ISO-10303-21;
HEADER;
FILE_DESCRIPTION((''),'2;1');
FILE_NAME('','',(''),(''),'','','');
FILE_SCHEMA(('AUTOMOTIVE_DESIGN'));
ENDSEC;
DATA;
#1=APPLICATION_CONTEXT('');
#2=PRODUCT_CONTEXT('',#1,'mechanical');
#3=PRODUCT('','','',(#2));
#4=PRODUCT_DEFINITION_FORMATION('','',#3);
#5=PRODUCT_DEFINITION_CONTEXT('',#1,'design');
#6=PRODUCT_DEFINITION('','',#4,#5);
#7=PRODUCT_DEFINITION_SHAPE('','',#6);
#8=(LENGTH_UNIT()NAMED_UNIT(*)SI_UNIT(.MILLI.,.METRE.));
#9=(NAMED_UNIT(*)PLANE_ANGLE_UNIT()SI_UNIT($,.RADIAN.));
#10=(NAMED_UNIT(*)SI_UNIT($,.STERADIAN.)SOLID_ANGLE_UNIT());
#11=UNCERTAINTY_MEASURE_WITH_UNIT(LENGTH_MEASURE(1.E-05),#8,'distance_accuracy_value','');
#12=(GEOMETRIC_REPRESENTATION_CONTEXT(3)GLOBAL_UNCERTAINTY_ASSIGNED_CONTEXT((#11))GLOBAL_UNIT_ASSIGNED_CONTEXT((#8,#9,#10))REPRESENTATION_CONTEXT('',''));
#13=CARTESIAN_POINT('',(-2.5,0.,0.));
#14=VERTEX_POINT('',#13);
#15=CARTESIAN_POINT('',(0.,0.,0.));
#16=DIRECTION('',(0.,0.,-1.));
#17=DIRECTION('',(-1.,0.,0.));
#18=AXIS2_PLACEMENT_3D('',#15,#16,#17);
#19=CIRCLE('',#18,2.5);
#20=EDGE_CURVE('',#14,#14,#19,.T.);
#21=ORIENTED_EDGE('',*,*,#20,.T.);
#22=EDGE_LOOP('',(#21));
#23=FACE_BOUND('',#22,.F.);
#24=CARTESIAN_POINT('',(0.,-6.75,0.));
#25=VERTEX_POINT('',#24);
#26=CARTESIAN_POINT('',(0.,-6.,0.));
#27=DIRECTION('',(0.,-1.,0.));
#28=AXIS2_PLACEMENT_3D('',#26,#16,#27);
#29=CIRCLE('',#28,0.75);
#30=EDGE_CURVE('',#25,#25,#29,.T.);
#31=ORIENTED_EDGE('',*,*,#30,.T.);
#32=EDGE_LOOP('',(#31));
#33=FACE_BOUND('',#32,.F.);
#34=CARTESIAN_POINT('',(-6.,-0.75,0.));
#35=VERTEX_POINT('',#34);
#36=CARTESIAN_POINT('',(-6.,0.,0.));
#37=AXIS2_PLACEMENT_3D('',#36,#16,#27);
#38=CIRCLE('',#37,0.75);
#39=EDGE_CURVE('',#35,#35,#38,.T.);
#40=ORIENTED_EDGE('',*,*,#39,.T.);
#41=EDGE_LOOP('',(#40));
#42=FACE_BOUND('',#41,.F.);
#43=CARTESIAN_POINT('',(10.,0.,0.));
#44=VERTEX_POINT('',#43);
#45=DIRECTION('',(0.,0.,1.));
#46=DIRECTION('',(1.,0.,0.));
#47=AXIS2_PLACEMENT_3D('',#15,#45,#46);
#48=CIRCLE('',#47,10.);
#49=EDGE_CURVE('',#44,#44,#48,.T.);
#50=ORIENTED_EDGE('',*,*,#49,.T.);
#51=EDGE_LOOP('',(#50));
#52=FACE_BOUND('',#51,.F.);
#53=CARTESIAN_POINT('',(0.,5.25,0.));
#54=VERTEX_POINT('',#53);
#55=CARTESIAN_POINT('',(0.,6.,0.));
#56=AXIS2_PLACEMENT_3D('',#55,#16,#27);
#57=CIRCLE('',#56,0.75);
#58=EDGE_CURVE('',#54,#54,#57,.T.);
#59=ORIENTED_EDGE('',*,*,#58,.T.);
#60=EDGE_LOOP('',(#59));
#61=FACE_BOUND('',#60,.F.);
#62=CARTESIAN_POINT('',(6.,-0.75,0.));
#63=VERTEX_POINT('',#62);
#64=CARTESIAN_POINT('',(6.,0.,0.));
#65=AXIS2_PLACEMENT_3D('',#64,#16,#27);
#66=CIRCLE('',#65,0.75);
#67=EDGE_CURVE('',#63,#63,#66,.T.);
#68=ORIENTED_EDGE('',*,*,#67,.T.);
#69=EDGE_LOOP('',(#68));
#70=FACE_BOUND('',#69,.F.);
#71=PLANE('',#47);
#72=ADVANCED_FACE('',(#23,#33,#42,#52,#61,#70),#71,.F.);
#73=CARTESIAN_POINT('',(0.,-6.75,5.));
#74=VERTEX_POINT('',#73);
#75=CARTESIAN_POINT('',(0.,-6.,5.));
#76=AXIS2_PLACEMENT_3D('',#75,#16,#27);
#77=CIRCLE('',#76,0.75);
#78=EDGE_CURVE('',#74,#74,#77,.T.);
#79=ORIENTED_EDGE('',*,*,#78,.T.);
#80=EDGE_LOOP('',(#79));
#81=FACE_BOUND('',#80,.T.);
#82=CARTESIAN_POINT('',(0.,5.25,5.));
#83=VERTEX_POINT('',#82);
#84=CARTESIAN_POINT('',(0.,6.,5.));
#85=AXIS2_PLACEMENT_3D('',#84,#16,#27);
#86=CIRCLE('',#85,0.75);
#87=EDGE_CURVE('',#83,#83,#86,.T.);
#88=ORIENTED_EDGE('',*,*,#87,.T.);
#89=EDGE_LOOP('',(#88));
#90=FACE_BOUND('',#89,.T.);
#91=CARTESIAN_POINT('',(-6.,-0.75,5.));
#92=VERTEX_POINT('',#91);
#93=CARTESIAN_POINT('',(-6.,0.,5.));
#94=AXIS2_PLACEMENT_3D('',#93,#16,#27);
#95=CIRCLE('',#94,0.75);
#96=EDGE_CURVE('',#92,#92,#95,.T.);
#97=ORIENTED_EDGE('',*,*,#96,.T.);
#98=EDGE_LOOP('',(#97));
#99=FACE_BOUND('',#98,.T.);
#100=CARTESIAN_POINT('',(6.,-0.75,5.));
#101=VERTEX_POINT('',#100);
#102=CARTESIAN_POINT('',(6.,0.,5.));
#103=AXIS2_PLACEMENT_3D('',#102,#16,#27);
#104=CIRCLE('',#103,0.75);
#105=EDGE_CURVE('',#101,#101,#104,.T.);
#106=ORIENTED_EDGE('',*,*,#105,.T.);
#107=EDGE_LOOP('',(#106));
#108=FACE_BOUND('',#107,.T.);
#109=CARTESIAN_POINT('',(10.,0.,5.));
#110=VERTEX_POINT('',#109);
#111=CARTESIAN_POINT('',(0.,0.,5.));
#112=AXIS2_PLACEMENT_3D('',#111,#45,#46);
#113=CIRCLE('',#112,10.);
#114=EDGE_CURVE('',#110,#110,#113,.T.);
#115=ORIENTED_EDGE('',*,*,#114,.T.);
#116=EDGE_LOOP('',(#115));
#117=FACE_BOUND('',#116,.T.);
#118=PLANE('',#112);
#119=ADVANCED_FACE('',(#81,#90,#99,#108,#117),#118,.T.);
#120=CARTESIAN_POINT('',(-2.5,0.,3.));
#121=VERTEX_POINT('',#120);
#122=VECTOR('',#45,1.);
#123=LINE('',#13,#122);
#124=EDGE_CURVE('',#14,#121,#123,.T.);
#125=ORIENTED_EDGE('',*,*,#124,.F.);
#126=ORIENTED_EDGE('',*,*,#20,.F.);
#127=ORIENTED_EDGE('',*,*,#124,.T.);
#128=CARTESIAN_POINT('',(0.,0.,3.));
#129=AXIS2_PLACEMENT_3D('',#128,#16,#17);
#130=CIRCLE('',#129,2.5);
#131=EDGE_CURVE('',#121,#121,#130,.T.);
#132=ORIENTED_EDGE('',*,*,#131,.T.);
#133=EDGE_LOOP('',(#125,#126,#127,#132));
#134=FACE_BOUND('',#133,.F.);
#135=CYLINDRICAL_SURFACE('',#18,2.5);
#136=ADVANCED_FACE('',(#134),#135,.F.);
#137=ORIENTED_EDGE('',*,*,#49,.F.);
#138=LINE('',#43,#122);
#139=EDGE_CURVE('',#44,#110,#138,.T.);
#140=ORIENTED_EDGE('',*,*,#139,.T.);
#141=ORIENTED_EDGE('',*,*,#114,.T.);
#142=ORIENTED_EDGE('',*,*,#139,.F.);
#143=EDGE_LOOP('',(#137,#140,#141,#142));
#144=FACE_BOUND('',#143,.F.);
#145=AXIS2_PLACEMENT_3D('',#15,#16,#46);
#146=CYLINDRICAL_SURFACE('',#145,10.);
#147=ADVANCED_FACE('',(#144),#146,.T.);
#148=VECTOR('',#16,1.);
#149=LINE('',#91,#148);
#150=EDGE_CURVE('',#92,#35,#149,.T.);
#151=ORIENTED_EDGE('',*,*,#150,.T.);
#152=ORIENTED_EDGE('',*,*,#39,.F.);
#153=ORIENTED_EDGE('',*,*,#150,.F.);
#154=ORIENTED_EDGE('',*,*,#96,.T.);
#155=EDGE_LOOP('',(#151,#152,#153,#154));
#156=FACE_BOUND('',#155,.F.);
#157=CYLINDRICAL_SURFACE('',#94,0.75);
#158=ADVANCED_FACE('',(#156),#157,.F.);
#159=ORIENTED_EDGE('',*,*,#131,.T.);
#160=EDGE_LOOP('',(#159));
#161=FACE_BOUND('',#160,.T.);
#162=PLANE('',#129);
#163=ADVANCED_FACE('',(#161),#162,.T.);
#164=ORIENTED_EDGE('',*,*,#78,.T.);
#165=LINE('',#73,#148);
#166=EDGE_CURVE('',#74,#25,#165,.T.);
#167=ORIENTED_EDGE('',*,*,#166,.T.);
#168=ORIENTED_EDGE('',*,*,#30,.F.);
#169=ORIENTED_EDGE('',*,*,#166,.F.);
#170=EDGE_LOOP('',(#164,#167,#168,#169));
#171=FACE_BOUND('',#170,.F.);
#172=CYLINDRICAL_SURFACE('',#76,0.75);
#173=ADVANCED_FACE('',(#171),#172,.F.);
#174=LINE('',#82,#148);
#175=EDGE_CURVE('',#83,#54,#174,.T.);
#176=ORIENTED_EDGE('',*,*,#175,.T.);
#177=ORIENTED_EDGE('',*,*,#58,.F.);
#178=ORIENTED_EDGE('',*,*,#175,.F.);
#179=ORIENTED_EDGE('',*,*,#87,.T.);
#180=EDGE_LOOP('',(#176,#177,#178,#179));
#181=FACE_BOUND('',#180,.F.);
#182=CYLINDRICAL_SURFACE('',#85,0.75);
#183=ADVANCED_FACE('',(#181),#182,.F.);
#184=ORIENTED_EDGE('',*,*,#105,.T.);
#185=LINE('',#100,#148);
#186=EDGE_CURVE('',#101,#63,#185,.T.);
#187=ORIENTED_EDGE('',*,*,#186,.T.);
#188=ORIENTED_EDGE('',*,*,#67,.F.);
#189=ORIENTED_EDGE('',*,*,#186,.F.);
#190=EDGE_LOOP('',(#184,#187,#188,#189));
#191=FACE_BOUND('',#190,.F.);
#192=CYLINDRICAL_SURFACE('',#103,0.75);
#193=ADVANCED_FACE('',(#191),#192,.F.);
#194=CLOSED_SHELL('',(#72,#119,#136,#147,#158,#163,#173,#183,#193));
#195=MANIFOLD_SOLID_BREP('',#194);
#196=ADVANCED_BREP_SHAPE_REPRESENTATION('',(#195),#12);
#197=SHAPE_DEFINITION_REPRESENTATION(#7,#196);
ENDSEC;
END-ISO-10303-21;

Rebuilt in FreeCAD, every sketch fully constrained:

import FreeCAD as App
import Part
import Sketcher
Q = App.Units.Quantity

doc = App.newDocument("Part")
body = doc.addObject("PartDesign::Body", "Body")

# Sketch on XY plane
sketch1 = body.newObject("Sketcher::SketchObject", "Sketch")
sketch1.AttachmentSupport = (doc.getObject("XY_Plane"), [""])
sketch1.MapMode = "FlatFace"
sketch1.addGeometry(Part.Circle(App.Vector(0, 0, 0), App.Vector(0, 0, 1), 10), False)
sketch1.addConstraint([
    Sketcher.Constraint("Coincident", 0, 3, -1, 1),
    Sketcher.Constraint("Diameter", 0, Q("20 mm")),
])
pad1 = body.newObject("PartDesign::Pad", "Pad")
pad1.Profile = sketch1
pad1.Length = 5

# Sketch on XY plane
sketch2 = body.newObject("Sketcher::SketchObject", "Sketch001")
sketch2.AttachmentSupport = (doc.getObject("XY_Plane"), [""])
sketch2.MapMode = "FlatFace"
sketch2.AttachmentOffset = App.Placement(App.Vector(0, 0, 5), App.Rotation())
sketch2.addGeometry([
    Part.Circle(App.Vector(0, 6, 0), App.Vector(0, 0, 1), 0.8),
    Part.Circle(App.Vector(-6, 0, 0), App.Vector(0, 0, 1), 0.8),
    Part.Circle(App.Vector(0, -6, 0), App.Vector(0, 0, 1), 0.8),
    Part.Circle(App.Vector(6, 0, 0), App.Vector(0, 0, 1), 0.8),
], False)
sketch2.addConstraint([
    Sketcher.Constraint("Equal", 0, 1),
    Sketcher.Constraint("Equal", 1, 2),
    Sketcher.Constraint("Equal", 2, 3),
    Sketcher.Constraint("Symmetric", 0, 3, 2, 3, -1, 1),
    Sketcher.Constraint("Symmetric", 1, 3, 3, 3, -1, 1),
    Sketcher.Constraint("PointOnObject", 0, 3, -2),
    Sketcher.Constraint("PointOnObject", 1, 3, -1),
    Sketcher.Constraint("Diameter", 0, Q("1.5 mm")),
    Sketcher.Constraint("DistanceY", -1, 1, 0, 3, Q("6 mm")),
    Sketcher.Constraint("DistanceX", 1, 3, -1, 1, Q("6 mm")),
])
doc.recompute()
hole = body.newObject("PartDesign::Hole", "Hole")
hole.Profile = sketch2
hole.ThreadType = "None"
hole.Diameter = 1.5
hole.DepthType = "ThroughAll"

# Sketch on XY plane
sketch3 = body.newObject("Sketcher::SketchObject", "Sketch002")
sketch3.AttachmentSupport = (doc.getObject("XY_Plane"), [""])
sketch3.MapMode = "FlatFace"
sketch3.addGeometry(Part.Circle(App.Vector(0, 0, 0), App.Vector(0, 0, 1), 2.5), False)
sketch3.addConstraint([
    Sketcher.Constraint("Coincident", 0, 3, -1, 1),
    Sketcher.Constraint("Diameter", 0, Q("5 mm")),
])
pocket1 = body.newObject("PartDesign::Pocket", "Pocket")
pocket1.Profile = sketch3
pocket1.Length = 3
pocket1.Reversed = True

doc.recompute()
